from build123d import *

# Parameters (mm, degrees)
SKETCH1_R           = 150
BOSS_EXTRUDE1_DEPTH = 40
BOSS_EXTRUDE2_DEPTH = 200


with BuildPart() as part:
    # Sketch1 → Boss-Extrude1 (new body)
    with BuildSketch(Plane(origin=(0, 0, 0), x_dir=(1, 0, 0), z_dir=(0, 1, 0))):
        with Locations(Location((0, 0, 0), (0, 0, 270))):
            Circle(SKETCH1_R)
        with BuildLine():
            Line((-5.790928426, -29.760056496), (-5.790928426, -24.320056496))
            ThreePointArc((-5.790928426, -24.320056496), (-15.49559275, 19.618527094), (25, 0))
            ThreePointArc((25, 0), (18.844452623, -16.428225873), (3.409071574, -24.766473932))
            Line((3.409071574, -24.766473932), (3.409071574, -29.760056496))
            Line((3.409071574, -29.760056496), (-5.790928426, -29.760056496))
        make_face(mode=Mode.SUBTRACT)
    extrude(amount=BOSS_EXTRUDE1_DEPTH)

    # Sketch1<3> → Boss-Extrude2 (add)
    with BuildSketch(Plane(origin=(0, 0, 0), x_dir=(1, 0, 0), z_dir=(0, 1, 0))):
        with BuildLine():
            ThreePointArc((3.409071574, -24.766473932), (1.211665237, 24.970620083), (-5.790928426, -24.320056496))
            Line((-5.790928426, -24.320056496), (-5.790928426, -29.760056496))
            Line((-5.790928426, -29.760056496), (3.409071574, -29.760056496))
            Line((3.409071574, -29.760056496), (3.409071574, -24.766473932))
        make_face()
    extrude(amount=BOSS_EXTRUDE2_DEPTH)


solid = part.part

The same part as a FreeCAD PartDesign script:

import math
import FreeCAD as App
import Part
import Sketcher
from FreeCAD import Vector
Q = App.Units.Quantity

doc = App.newDocument("Part")
body = doc.addObject("PartDesign::Body", "Body")

# Sketch on XZ plane
sketch1 = doc.addObject("Sketcher::SketchObject", "Sketch")
body.addObject(sketch1)
sketch1.AttachmentSupport = (doc.XZ_Plane, [""])
sketch1.MapMode = "FlatFace"
sketch1.addGeometry([
    Part.Circle(Vector(0, 0, 0), Vector(0, 0, 1), 150),  # 0
    Part.LineSegment(Vector(3.4, 29.8, 0), Vector(-5.8, 29.8, 0)),  # 1
    Part.LineSegment(Vector(-5.8, 29.8, 0), Vector(-5.8, 24.3, 0)),  # 2
    Part.ArcOfCircle(Part.Circle(Vector(0, 0, 0), Vector(0, 0, 1), 25), math.radians(103), math.radians(360)),  # 3
    Part.ArcOfCircle(Part.Circle(Vector(0, 0, 0), Vector(0, 0, 1), 25), math.radians(0), math.radians(82)),  # 4
    Part.LineSegment(Vector(3.4, 24.8, 0), Vector(3.4, 29.8, 0)),  # 5
], False)
sketch1.addConstraint([
    Sketcher.Constraint("Coincident", 1, 2, 2, 1),
    Sketcher.Constraint("Coincident", 2, 2, 3, 1),
    Sketcher.Constraint("Tangent", 3, 2, 4, 1),
    Sketcher.Constraint("Coincident", 4, 2, 5, 1),
    Sketcher.Constraint("Coincident", 5, 2, 1, 1),
    Sketcher.Constraint("Horizontal", 1),
    Sketcher.Constraint("Vertical", 2),
    Sketcher.Constraint("Vertical", 5),
    Sketcher.Constraint("Coincident", 0, 3, -1, 1),
    Sketcher.Constraint("Coincident", 3, 3, -1, 1),
    Sketcher.Constraint("Equal", 3, 4),
    Sketcher.Constraint("PointOnObject", 3, 2, -1),
    Sketcher.Constraint("Diameter", 0, Q("300 mm")),
    Sketcher.Constraint("Radius", 3, Q("25 mm")),
    Sketcher.Constraint("DistanceX", 1, 2, 1, 1, Q("9.2 mm")),
    Sketcher.Constraint("DistanceY", 2, 2, 2, 1, Q("5.44 mm")),
    Sketcher.Constraint("DistanceY", 5, 1, 5, 2, Q("4.993583 mm")),
])
pad1 = doc.addObject("PartDesign::Pad", "Pad")
body.addObject(pad1)
pad1.Profile = sketch1
pad1.Length = 40
pad1.Reversed = True

# Sketch on XZ plane
sketch2 = doc.addObject("Sketcher::SketchObject", "Sketch001")
body.addObject(sketch2)
sketch2.AttachmentSupport = (doc.XZ_Plane, [""])
sketch2.MapMode = "FlatFace"
sketch2.addGeometry([
    Part.ArcOfCircle(Part.Circle(Vector(0, 0, 0), Vector(0, 0, 1), 25), math.radians(103), math.radians(442)),
    Part.LineSegment(Vector(-5.8, 24.3, 0), Vector(-5.8, 29.8, 0)),
    Part.LineSegment(Vector(-5.8, 29.8, 0), Vector(3.4, 29.8, 0)),
    Part.LineSegment(Vector(3.4, 29.8, 0), Vector(3.4, 24.8, 0)),
], False)
sketch2.addConstraint([
    Sketcher.Constraint("Coincident", 0, 1, 1, 1),
    Sketcher.Constraint("Coincident", 1, 2, 2, 1),
    Sketcher.Constraint("Coincident", 2, 2, 3, 1),
    Sketcher.Constraint("Coincident", 3, 2, 0, 2),
    Sketcher.Constraint("Vertical", 1),
    Sketcher.Constraint("Horizontal", 2),
    Sketcher.Constraint("Vertical", 3),
    Sketcher.Constraint("Coincident", 0, 3, -1, 1),
    Sketcher.Constraint("Radius", 0, Q("25 mm")),
    Sketcher.Constraint("DistanceX", 2, 1, 2, 2, Q("9.2 mm")),
    Sketcher.Constraint("DistanceY", 1, 1, 1, 2, Q("5.44 mm")),
    Sketcher.Constraint("DistanceY", 3, 2, 3, 1, Q("4.993583 mm")),
])
pad2 = doc.addObject("PartDesign::Pad", "Pad001")
body.addObject(pad2)
pad2.Profile = sketch2
pad2.Length = 200
pad2.Reversed = True

doc.recompute()
